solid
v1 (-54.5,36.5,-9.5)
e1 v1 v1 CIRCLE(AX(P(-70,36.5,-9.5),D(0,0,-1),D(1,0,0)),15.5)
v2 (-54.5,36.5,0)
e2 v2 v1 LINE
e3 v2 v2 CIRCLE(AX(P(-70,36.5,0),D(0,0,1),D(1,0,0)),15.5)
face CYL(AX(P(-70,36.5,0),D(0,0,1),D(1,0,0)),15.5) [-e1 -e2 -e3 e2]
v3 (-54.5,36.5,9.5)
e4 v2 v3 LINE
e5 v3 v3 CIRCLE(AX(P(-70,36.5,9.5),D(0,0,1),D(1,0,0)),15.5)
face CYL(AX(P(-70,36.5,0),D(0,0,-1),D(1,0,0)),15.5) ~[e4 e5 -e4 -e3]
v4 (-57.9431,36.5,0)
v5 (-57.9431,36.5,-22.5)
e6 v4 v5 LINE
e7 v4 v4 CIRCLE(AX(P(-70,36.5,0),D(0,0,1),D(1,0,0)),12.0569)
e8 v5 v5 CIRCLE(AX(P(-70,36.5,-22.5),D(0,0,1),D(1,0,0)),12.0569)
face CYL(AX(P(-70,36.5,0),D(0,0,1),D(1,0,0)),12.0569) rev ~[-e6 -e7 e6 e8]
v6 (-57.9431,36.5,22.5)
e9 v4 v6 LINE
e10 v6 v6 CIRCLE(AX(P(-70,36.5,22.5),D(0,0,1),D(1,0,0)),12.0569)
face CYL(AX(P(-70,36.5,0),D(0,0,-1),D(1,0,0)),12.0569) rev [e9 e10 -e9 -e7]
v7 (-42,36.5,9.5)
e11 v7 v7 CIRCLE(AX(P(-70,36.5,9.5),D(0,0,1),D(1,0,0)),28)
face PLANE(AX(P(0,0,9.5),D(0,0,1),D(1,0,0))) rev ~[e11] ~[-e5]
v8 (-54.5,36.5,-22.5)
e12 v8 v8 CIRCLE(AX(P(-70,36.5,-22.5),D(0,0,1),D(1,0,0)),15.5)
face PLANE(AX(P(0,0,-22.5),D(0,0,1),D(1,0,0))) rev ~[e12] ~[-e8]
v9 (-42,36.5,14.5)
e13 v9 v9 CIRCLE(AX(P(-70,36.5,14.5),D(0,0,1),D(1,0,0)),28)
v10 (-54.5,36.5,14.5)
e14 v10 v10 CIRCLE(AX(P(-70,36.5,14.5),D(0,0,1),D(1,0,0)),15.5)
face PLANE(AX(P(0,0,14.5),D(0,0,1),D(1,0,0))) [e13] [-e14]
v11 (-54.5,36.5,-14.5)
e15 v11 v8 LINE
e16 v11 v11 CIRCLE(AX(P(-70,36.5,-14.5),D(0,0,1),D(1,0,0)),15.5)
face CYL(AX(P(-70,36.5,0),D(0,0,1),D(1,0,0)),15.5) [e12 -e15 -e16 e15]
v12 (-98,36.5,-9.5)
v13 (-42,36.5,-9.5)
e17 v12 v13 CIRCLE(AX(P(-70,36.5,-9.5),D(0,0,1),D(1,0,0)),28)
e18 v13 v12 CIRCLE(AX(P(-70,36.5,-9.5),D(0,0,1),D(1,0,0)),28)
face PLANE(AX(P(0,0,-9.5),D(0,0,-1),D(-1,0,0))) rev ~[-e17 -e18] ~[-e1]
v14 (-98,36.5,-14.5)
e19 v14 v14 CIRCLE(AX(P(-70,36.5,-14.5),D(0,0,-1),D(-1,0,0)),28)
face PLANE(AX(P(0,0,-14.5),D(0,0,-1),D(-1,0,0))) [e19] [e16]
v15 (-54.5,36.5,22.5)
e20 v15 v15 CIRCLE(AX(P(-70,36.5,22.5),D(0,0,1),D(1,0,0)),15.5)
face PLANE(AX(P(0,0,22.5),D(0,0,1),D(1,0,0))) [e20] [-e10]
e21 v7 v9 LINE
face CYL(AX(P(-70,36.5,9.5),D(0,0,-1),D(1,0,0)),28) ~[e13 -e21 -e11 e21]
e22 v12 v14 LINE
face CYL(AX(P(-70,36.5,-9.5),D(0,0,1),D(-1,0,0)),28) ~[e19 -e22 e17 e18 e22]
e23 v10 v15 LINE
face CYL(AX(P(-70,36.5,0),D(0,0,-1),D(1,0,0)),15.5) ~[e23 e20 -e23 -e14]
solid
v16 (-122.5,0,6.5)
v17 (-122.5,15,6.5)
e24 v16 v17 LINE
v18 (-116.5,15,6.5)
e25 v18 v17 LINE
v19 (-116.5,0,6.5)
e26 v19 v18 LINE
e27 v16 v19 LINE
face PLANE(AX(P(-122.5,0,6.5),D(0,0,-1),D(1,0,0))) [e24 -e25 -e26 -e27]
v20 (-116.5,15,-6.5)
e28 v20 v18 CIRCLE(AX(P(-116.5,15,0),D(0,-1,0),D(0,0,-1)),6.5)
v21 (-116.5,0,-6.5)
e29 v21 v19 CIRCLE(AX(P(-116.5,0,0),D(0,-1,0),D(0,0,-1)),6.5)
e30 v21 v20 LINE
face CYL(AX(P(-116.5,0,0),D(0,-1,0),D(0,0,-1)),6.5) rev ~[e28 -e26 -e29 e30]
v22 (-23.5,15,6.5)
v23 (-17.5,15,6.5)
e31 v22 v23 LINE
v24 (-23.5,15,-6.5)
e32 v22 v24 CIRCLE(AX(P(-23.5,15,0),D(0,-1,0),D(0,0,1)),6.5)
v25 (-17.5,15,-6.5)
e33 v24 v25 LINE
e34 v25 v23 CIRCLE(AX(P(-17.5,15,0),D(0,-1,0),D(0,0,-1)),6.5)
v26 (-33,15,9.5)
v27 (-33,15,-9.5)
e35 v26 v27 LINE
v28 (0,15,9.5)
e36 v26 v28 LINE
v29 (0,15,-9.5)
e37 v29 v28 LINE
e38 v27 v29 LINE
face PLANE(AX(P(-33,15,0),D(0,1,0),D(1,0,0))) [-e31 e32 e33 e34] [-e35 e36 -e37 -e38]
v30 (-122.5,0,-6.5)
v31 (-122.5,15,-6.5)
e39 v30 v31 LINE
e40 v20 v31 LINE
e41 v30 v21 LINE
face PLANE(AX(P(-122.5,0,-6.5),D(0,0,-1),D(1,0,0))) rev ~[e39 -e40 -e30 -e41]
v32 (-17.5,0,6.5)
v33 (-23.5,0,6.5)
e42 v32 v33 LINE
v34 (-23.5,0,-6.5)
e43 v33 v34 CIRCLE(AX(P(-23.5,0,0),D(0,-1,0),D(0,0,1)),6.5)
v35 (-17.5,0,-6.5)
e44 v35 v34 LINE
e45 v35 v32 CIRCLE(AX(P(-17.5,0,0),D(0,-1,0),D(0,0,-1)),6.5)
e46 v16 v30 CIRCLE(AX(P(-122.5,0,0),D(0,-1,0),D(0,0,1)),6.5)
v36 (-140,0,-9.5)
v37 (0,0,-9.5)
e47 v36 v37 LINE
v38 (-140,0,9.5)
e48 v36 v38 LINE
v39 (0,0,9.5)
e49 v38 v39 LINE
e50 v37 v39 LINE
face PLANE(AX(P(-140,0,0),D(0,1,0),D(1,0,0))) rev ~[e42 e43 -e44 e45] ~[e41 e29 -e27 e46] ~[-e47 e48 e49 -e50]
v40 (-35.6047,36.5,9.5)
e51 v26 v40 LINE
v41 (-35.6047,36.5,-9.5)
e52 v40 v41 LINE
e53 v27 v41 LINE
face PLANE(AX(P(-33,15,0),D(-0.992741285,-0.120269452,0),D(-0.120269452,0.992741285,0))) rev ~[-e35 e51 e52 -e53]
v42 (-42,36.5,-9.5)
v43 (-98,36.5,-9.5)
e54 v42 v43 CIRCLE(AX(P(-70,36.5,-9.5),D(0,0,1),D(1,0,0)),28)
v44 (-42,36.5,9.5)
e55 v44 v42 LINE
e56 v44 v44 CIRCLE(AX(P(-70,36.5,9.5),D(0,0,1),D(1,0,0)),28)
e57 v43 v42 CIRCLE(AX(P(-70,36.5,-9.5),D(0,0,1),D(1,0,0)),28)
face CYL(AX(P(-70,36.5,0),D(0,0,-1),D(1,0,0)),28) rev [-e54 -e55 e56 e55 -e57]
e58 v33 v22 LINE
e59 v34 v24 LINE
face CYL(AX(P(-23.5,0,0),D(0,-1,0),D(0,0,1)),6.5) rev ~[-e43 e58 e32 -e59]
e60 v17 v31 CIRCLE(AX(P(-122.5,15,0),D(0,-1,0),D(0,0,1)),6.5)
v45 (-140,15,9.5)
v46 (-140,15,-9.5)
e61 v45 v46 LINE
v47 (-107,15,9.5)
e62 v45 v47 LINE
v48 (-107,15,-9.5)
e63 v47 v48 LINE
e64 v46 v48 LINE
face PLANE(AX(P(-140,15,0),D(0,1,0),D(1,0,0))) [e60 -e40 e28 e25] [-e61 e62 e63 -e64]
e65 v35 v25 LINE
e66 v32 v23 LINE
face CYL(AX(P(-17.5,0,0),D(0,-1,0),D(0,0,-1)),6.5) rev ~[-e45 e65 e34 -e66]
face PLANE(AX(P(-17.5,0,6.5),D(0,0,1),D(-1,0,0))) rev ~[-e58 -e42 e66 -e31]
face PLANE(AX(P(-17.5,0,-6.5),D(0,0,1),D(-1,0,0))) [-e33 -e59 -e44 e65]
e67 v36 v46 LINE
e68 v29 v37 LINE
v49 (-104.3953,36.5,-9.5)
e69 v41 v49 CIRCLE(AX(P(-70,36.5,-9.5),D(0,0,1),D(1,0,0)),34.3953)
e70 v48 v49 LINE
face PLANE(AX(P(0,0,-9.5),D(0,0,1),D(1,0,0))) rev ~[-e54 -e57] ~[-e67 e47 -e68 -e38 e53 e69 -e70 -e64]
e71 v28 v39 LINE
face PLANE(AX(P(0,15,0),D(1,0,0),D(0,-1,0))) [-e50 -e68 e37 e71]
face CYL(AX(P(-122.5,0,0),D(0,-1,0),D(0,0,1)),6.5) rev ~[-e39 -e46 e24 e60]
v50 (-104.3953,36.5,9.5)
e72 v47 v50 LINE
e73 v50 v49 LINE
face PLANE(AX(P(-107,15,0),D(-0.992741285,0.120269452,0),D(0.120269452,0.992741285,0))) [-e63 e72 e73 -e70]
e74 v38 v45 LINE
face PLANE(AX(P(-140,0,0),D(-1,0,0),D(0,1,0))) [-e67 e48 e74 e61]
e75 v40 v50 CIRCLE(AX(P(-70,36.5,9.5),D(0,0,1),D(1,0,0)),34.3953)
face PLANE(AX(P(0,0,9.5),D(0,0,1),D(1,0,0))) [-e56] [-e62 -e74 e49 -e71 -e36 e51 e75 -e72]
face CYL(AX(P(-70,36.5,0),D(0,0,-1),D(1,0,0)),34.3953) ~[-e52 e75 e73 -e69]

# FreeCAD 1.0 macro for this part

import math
import FreeCAD as App
import Part
import Sketcher

V = App.Vector

doc = App.newDocument("Part")
params = doc.addObject("Spreadsheet::Sheet", "Params")
for row, (alias, value) in enumerate([
    ("sketch1_diameter", "56 mm"),
    ("sketch1_width", "140 mm"),
    ("sketch1_width2", "33 mm"),
    ("sketch1_height", "15 mm"),
    ("pad1_length", "19 mm"),
    ("sketch2_diameter", "56 mm"),
    ("sketch2_diameter2", "31 mm"),
    ("pad2_length", "5 mm"),
    ("sketch3_diameter", "56 mm"),
    ("sketch3_diameter2", "31 mm"),
    ("pad3_length", "5 mm"),
    ("sketch4_diameter", "31 mm"),
    ("pad4_length", "45 mm"),
    ("sketch5_radius", "6.5 mm"),
    ("sketch5_width", "6 mm"),
], start=1):
    params.set(f"A{row}", alias)
    params.set(f"B{row}", "=" + value)
    params.setAlias(f"B{row}", alias)

body = doc.addObject("PartDesign::Body", "Body")
body.AllowCompound = True

# Sketch on XY plane
sketch1 = body.newObject("Sketcher::SketchObject", "Sketch")
sketch1.AttachmentSupport = (doc.getObject("XY_Plane"), [""])
sketch1.MapMode = "FlatFace"
sketch1.addGeometry([
    Part.LineSegment(V(-140, 15, 0), V(-140, 0, 0)),  # 0
    Part.LineSegment(V(-140, 0, 0), V(0, 0, 0)),  # 1
    Part.LineSegment(V(0, 0, 0), V(0, 15, 0)),  # 2
    Part.LineSegment(V(0, 15, 0), V(-33, 15, 0)),  # 3
    Part.LineSegment(V(-33, 15, 0), V(-36, 36, 0)),  # 4
    Part.ArcOfCircle(Part.Circle(V(-70, 36, 0), V(0, 0, 1), 34), math.radians(0), math.radians(180)),  # 5
    Part.LineSegment(V(-104, 36, 0), V(-107, 15, 0)),  # 6
    Part.LineSegment(V(-107, 15, 0), V(-140, 15, 0)),  # 7
    Part.Circle(V(-70, 36, 0), V(0, 0, 1), 28),  # 8
], False)
sketch1.addConstraint([
    Sketcher.Constraint("Coincident", 0, 2, 1, 1),
    Sketcher.Constraint("Coincident", 1, 2, 2, 1),
    Sketcher.Constraint("Coincident", 2, 2, 3, 1),
    Sketcher.Constraint("Coincident", 3, 2, 4, 1),
    Sketcher.Constraint("Coincident", 4, 2, 5, 1),
    Sketcher.Constraint("Coincident", 5, 2, 6, 1),
    Sketcher.Constraint("Coincident", 6, 2, 7, 1),
    Sketcher.Constraint("Coincident", 7, 2, 0, 1),
    Sketcher.Constraint("Vertical", 0),
    Sketcher.Constraint("Horizontal", 1),
    Sketcher.Constraint("Vertical", 2),
    Sketcher.Constraint("Horizontal", 3),
    Sketcher.Constraint("Horizontal", 7),
    Sketcher.Constraint("Coincident", 1, 2, -1, 1),
    Sketcher.Constraint("Coincident", 8, 3, 5, 3),
    Sketcher.Constraint("Horizontal", 8, 3, 4, 2),
    Sketcher.Constraint("Horizontal", 4, 2, 5, 2),
    Sketcher.Constraint("Horizontal", 3, 2, 6, 2),
    Sketcher.Constraint("Equal", 3, 7),
    Sketcher.Constraint("Equal", 4, 6),
    Sketcher.Constraint("Diameter", 8, 56.0),
    Sketcher.Constraint("DistanceX", 1, 1, 1, 2, 140.0),
    Sketcher.Constraint("DistanceX", 3, 2, 3, 1, 33.0),
    Sketcher.Constraint("DistanceY", 0, 2, 0, 1, 15.0),
    Sketcher.Constraint("DistanceY", -1, 1, 5, 3, 36.5),
    Sketcher.Constraint("Radius", 5, 34.3953),
])
sketch1.setExpression("Constraints[20]", "Params.sketch1_diameter")
sketch1.setExpression("Constraints[21]", "Params.sketch1_width")
sketch1.setExpression("Constraints[22]", "Params.sketch1_width2")
sketch1.setExpression("Constraints[23]", "Params.sketch1_height")
pad1 = body.newObject("PartDesign::Pad", "Pad")
pad1.Profile = sketch1
pad1.setExpression("Length", "Params.pad1_length")
pad1.Midplane = True

# Sketch on XY plane
sketch2 = body.newObject("Sketcher::SketchObject", "Sketch001")
sketch2.AttachmentSupport = (doc.getObject("XY_Plane"), [""])
sketch2.MapMode = "FlatFace"
sketch2.AttachmentOffset = App.Placement(V(0, 0, 9.5), App.Rotation())
sketch2.addGeometry([
    Part.Circle(V(-70, 36, 0), V(0, 0, 1), 28),
    Part.Circle(V(-70, 36, 0), V(0, 0, 1), 16),
], False)
sketch2.addConstraint([
    Sketcher.Constraint("Coincident", 1, 3, 0, 3),
    Sketcher.Constraint("Diameter", 0, 56.0),
    Sketcher.Constraint("Diameter", 1, 31.0),
    Sketcher.Constraint("DistanceX", 0, 3, -1, 1, 70.0),
    Sketcher.Constraint("DistanceY", -1, 1, 0, 3, 36.5),
])
sketch2.setExpression("Constraints[1]", "Params.sketch2_diameter")
sketch2.setExpression("Constraints[2]", "Params.sketch2_diameter2")
pad2 = body.newObject("PartDesign::Pad", "Pad001")
pad2.Profile = sketch2
pad2.setExpression("Length", "Params.pad2_length")

# Sketch on XY plane
sketch3 = body.newObject("Sketcher::SketchObject", "Sketch002")
sketch3.AttachmentSupport = (doc.getObject("XY_Plane"), [""])
sketch3.MapMode = "FlatFace"
sketch3.AttachmentOffset = App.Placement(V(0, 0, -9.5), App.Rotation())
sketch3.addGeometry([
    Part.Circle(V(-70, 36, 0), V(0, 0, 1), 28),
    Part.Circle(V(-70, 36, 0), V(0, 0, 1), 16),
], False)
sketch3.addConstraint([
    Sketcher.Constraint("Coincident", 1, 3, 0, 3),
    Sketcher.Constraint("Diameter", 0, 56.0),
    Sketcher.Constraint("Diameter", 1, 31.0),
    Sketcher.Constraint("DistanceX", 0, 3, -1, 1, 70.0),
    Sketcher.Constraint("DistanceY", -1, 1, 0, 3, 36.5),
])
sketch3.setExpression("Constraints[1]", "Params.sketch3_diameter")
sketch3.setExpression("Constraints[2]", "Params.sketch3_diameter2")
pad3 = body.newObject("PartDesign::Pad", "Pad002")
pad3.Profile = sketch3
pad3.setExpression("Length", "Params.pad3_length")
pad3.Reversed = True

# Sketch on XY plane
sketch4 = body.newObject("Sketcher::SketchObject", "Sketch003")
sketch4.AttachmentSupport = (doc.getObject("XY_Plane"), [""])
sketch4.MapMode = "FlatFace"
sketch4.addGeometry([
    Part.Circle(V(-70, 36, 0), V(0, 0, 1), 16),
    Part.Circle(V(-70, 36, 0), V(0, 0, 1), 12),
], False)
sketch4.addConstraint([
    Sketcher.Constraint("Coincident", 1, 3, 0, 3),
    Sketcher.Constraint("Diameter", 0, 31.0),
    Sketcher.Constraint("DistanceX", 0, 3, -1, 1, 70.0),
    Sketcher.Constraint("Diameter", 1, 24.1138),
    Sketcher.Constraint("DistanceY", -1, 1, 0, 3, 36.5),
])
sketch4.setExpression("Constraints[1]", "Params.sketch4_diameter")
pad4 = body.newObject("PartDesign::Pad", "Pad003")
pad4.Profile = sketch4
pad4.setExpression("Length", "Params.pad4_length")
pad4.Midplane = True

# Sketch on XZ plane
sketch5 = body.newObject("Sketcher::SketchObject", "Sketch004")
sketch5.AttachmentSupport = (doc.getObject("XZ_Plane"), [""])
sketch5.MapMode = "FlatFace"
sketch5.addGeometry([
    Part.LineSegment(V(-116, 6, 0), V(-122, 6, 0)),  # 0
    Part.ArcOfCircle(Part.Circle(V(-122, 0, 0), V(0, 0, 1), 6), math.radians(90), math.radians(270)),  # 1
    Part.LineSegment(V(-122, -6, 0), V(-116, -6, 0)),  # 2
    Part.ArcOfCircle(Part.Circle(V(-116, 0, 0), V(0, 0, 1), 6), math.radians(-90), math.radians(90)),  # 3
    Part.LineSegment(V(-24, -6, 0), V(-18, -6, 0)),  # 4
    Part.ArcOfCircle(Part.Circle(V(-18, 0, 0), V(0, 0, 1), 6), math.radians(-90), math.radians(90)),  # 5
    Part.LineSegment(V(-18, 6, 0), V(-24, 6, 0)),  # 6
    Part.ArcOfCircle(Part.Circle(V(-24, 0, 0), V(0, 0, 1), 6), math.radians(90), math.radians(270)),  # 7
], False)
sketch5.addConstraint([
    Sketcher.Constraint("Tangent", 0, 2, 1, 1),
    Sketcher.Constraint("Tangent", 1, 2, 2, 1),
    Sketcher.Constraint("Tangent", 2, 2, 3, 1),
    Sketcher.Constraint("Tangent", 3, 2, 0, 1),
    Sketcher.Constraint("Tangent", 4, 2, 5, 1),
    Sketcher.Constraint("Tangent", 5, 2, 6, 1),
    Sketcher.Constraint("Tangent", 6, 2, 7, 1),
    Sketcher.Constraint("Tangent", 7, 2, 4, 1),
    Sketcher.Constraint("Horizontal", 0),
    Sketcher.Constraint("Horizontal", 2),
    Sketcher.Constraint("Horizontal", 4),
    Sketcher.Constraint("Horizontal", 6),
    Sketcher.Constraint("Equal", 3, 5),
    Sketcher.Constraint("PointOnObject", 1, 3, -1),
    Sketcher.Constraint("PointOnObject", 5, 3, -1),
    Sketcher.Constraint("Equal", 2, 4),
    Sketcher.Constraint("Radius", 1, 6.5),
    Sketcher.Constraint("DistanceX", 0, 2, 0, 1, 6.0),
    Sketcher.Constraint("DistanceX", 5, 3, -1, 1, 17.5),
    Sketcher.Constraint("DistanceX", 3, 3, 5, 3, 99.0),
])
sketch5.setExpression("Constraints[16]", "Params.sketch5_radius")
sketch5.setExpression("Constraints[17]", "Params.sketch5_width")
pocket1 = body.newObject("PartDesign::Pocket", "Pocket")
pocket1.Profile = sketch5
pocket1.Type = "ThroughAll"

doc.recompute()
